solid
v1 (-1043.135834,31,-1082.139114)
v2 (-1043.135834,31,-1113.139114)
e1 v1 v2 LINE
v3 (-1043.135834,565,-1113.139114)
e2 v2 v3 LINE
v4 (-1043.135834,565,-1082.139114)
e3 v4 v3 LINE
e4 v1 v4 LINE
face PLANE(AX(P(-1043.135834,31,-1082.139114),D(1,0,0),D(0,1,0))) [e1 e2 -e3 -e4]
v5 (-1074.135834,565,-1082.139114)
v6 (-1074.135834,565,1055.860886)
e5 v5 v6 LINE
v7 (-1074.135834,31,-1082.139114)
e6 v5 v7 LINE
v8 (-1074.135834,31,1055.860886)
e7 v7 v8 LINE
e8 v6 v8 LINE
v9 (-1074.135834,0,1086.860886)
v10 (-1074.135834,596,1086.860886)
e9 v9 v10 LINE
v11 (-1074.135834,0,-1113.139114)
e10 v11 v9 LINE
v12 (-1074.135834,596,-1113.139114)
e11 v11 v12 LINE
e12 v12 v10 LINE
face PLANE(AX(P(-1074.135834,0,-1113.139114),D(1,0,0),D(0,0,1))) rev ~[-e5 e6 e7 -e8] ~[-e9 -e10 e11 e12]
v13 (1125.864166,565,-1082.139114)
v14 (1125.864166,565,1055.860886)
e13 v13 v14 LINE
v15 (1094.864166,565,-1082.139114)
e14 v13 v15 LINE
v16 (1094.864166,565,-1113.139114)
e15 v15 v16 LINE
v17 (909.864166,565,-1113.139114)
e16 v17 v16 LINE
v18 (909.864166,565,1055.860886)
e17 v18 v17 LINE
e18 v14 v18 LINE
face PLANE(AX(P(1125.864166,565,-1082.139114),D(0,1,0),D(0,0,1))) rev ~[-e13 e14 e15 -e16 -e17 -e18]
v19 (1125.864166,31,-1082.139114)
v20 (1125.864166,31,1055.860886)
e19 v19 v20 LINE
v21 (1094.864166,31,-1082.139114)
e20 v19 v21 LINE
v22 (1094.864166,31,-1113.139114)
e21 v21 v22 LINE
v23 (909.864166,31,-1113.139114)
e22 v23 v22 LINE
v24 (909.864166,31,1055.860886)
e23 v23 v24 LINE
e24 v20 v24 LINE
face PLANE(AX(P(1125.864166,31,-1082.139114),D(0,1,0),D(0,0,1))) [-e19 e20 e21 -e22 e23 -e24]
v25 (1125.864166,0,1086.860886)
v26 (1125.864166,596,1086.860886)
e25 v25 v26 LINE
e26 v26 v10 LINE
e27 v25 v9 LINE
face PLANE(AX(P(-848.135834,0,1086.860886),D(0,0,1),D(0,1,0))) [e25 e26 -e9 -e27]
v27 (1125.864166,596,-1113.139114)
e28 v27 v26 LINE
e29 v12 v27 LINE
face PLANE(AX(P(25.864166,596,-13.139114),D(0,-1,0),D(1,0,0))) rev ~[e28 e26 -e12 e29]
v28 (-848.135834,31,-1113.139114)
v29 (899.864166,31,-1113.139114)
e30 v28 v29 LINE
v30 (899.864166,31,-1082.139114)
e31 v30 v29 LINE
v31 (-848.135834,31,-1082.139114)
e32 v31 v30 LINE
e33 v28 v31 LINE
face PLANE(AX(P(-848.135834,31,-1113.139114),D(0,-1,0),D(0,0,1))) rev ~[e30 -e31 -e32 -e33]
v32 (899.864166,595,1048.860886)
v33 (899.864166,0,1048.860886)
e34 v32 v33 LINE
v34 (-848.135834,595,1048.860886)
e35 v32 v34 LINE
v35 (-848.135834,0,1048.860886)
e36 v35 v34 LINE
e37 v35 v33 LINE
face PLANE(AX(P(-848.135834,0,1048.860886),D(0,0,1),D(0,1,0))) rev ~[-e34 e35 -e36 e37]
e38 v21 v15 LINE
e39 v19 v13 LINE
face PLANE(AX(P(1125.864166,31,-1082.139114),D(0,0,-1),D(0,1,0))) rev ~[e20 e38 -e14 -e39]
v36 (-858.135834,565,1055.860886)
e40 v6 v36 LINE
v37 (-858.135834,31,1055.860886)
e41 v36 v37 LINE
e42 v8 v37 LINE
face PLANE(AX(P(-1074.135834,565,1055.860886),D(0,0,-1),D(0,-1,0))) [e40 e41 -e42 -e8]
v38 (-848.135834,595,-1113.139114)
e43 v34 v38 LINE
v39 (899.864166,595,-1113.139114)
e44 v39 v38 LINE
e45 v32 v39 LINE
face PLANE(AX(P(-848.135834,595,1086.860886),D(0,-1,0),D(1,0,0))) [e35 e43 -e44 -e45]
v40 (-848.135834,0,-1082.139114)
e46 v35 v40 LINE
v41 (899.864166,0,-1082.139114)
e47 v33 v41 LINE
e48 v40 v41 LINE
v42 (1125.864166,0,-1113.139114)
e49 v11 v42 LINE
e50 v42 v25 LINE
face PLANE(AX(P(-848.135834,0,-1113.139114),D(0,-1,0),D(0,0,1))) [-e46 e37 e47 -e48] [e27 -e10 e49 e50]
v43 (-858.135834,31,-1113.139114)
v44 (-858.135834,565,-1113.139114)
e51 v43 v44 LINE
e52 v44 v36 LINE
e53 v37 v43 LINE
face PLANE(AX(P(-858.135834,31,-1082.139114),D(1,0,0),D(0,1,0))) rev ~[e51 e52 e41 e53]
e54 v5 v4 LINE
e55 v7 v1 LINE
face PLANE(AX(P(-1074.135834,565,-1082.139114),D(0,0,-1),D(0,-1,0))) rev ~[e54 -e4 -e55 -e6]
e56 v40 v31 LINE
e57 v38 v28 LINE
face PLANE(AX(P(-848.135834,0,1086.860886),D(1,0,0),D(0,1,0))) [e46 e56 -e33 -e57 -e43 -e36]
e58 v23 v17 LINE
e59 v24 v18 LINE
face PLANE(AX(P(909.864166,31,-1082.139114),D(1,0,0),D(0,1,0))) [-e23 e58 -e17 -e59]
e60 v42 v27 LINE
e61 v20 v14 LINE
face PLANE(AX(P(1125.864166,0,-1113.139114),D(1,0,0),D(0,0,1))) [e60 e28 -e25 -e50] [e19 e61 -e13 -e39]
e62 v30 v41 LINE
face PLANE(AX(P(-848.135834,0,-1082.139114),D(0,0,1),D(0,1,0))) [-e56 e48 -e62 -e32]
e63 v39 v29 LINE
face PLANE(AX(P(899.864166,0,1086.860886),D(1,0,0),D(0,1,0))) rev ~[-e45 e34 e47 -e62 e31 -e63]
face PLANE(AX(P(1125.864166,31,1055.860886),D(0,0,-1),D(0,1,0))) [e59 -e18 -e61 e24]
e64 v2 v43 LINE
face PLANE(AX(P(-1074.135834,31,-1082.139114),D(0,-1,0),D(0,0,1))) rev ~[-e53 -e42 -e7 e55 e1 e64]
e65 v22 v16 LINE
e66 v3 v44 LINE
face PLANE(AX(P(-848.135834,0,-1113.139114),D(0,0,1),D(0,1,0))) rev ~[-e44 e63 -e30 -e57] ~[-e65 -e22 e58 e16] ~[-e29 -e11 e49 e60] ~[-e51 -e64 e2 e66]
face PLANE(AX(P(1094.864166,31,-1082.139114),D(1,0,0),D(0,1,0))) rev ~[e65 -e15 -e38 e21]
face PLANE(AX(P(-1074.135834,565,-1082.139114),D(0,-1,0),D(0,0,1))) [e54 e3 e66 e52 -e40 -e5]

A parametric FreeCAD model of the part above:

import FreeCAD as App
import Part
import Sketcher


def add_polygon(sketch, points):
    """Adds a closed chain of lines whose ends are joined by coincident constraints."""
    first, n = sketch.GeometryCount, len(points)
    for a, b in zip(points, points[1:] + points[:1]):
        sketch.addGeometry(Part.LineSegment(App.Vector(*a, 0), App.Vector(*b, 0)), False)
    for i in range(n):
        sketch.addConstraint(Sketcher.Constraint("Coincident", first + i, 2, first + (i + 1) % n, 1))

doc = App.newDocument("Part")
body = doc.addObject("PartDesign::Body", "Body")

# Sketch on XZ plane
sketch1 = doc.addObject("Sketcher::SketchObject", "Sketch")
body.addObject(sketch1)
sketch1.AttachmentSupport = (doc.XZ_Plane, [""])
sketch1.MapMode = "FlatFace"
add_polygon(sketch1, [(-1074, 1087), (-1074, -1113), (1126, -1113), (1126, 1087)])  # lines 0-3
sketch1.addConstraint([
    Sketcher.Constraint("Vertical", 0),
    Sketcher.Constraint("Horizontal", 1),
    Sketcher.Constraint("Vertical", 2),
    Sketcher.Constraint("Horizontal", 3),
    Sketcher.Constraint("Equal", 3, 0),
    Sketcher.Constraint("DistanceX", 1, 1, 1, 2, 2200.0),
    Sketcher.Constraint("DistanceX", 0, 2, -1, 1, 1074.135834),
    Sketcher.Constraint("DistanceY", 0, 2, -1, 1, 1113.139114),
])
pad1 = doc.addObject("PartDesign::Pad", "Pad")
body.addObject(pad1)
pad1.Profile = sketch1
pad1.Length = 596
pad1.Reversed = True

# Sketch on XY plane
sketch2 = doc.addObject("Sketcher::SketchObject", "Sketch001")
body.addObject(sketch2)
sketch2.AttachmentSupport = (doc.XY_Plane, [""])
sketch2.MapMode = "FlatFace"
sketch2.AttachmentOffset = App.Placement(App.Vector(0, 0, 1086.860886), App.Rotation())
add_polygon(sketch2, [(-848, 595), (-848, 0), (900, 0), (900, 595)])  # lines 0-3
sketch2.addConstraint([
    Sketcher.Constraint("Vertical", 0),
    Sketcher.Constraint("Horizontal", 1),
    Sketcher.Constraint("Vertical", 2),
    Sketcher.Constraint("Horizontal", 3),
    Sketcher.Constraint("PointOnObject", 0, 2, -1),
    Sketcher.Constraint("DistanceX", 1, 1, 1, 2, 1748.0),
    Sketcher.Constraint("DistanceY", 0, 2, 0, 1, 595.0),
    Sketcher.Constraint("DistanceX", 0, 2, -1, 1, 848.135834),
])
pocket1 = doc.addObject("PartDesign::Pocket", "Pocket")
body.addObject(pocket1)
pocket1.Profile = sketch2
pocket1.Length = 2415.503973

# Sketch on YZ plane
sketch3 = doc.addObject("Sketcher::SketchObject", "Sketch002")
body.addObject(sketch3)
sketch3.AttachmentSupport = (doc.YZ_Plane, [""])
sketch3.MapMode = "FlatFace"
sketch3.AttachmentOffset = App.Placement(App.Vector(0, 0, -848.135834), App.Rotation())
add_polygon(sketch3, [(0, 1087), (0, 1049), (596, 1049), (596, 1087)])  # lines 0-3
sketch3.addConstraint([
    Sketcher.Constraint("Vertical", 0),
    Sketcher.Constraint("Horizontal", 1),
    Sketcher.Constraint("Vertical", 2),
    Sketcher.Constraint("Horizontal", 3),
    Sketcher.Constraint("PointOnObject", 0, 2, -2),
    Sketcher.Constraint("DistanceX", 1, 1, 1, 2, 596.0),
    Sketcher.Constraint("DistanceY", 0, 2, 0, 1, 38.0),
    Sketcher.Constraint("DistanceY", -1, 1, 0, 2, 1048.860886),
])
pad2 = doc.addObject("PartDesign::Pad", "Pad001")
body.addObject(pad2)
pad2.Profile = sketch3
pad2.Length = 1753.233517

# Sketch on YZ plane
sketch4 = doc.addObject("Sketcher::SketchObject", "Sketch003")
body.addObject(sketch4)
sketch4.AttachmentSupport = (doc.YZ_Plane, [""])
sketch4.MapMode = "FlatFace"
sketch4.AttachmentOffset = App.Placement(App.Vector(0, 0, -848.135834), App.Rotation())
add_polygon(sketch4, [(0, -1082), (0, -1113), (31, -1113), (31, -1082)])  # lines 0-3
sketch4.addConstraint([
    Sketcher.Constraint("Vertical", 0),
    Sketcher.Constraint("Horizontal", 1),
    Sketcher.Constraint("Vertical", 2),
    Sketcher.Constraint("Horizontal", 3),
    Sketcher.Constraint("PointOnObject", 0, 2, -2),
    Sketcher.Constraint("Equal", 3, 0),
    Sketcher.Constraint("DistanceX", 1, 1, 1, 2, 31.0),
    Sketcher.Constraint("DistanceY", 0, 2, -1, 1, 1113.139114),
])
pad3 = doc.addObject("PartDesign::Pad", "Pad002")
body.addObject(pad3)
pad3.Profile = sketch4
pad3.Length = 1759.984374

# Sketch on YZ plane
sketch5 = doc.addObject("Sketcher::SketchObject", "Sketch004")
body.addObject(sketch5)
sketch5.AttachmentSupport = (doc.YZ_Plane, [""])
sketch5.MapMode = "FlatFace"
sketch5.AttachmentOffset = App.Placement(App.Vector(0, 0, 1125.864166), App.Rotation())
add_polygon(sketch5, [(31, 1056), (31, -1082), (565, -1082), (565, 1056)])  # lines 0-3
sketch5.addConstraint([
    Sketcher.Constraint("Vertical", 0),
    Sketcher.Constraint("Horizontal", 1),
    Sketcher.Constraint("Vertical", 2),
    Sketcher.Constraint("Horizontal", 3),
    Sketcher.Constraint("DistanceX", 1, 1, 1, 2, 534.0),
    Sketcher.Constraint("DistanceY", 0, 2, 0, 1, 2138.0),
    Sketcher.Constraint("DistanceX", -1, 1, 0, 2, 31.0),
    Sketcher.Constraint("DistanceY", 0, 2, -1, 1, 1082.139114),
])
pocket2 = doc.addObject("PartDesign::Pocket", "Pocket001")
body.addObject(pocket2)
pocket2.Profile = sketch5
pocket2.Length = 216

# Sketch on XY plane
sketch6 = doc.addObject("Sketcher::SketchObject", "Sketch005")
body.addObject(sketch6)
sketch6.AttachmentSupport = (doc.XY_Plane, [""])
sketch6.MapMode = "FlatFace"
sketch6.AttachmentOffset = App.Placement(App.Vector(0, 0, -1082.139114), App.Rotation())
add_polygon(sketch6, [(910, 565), (910, 31), (1095, 31), (1095, 565)])  # lines 0-3
sketch6.addConstraint([
    Sketcher.Constraint("Vertical", 0),
    Sketcher.Constraint("Horizontal", 1),
    Sketcher.Constraint("Vertical", 2),
    Sketcher.Constraint("Horizontal", 3),
    Sketcher.Constraint("DistanceX", 1, 1, 1, 2, 185.0),
    Sketcher.Constraint("DistanceY", 0, 2, 0, 1, 534.0),
    Sketcher.Constraint("DistanceY", -1, 1, 0, 2, 31.0),
    Sketcher.Constraint("DistanceX", -1, 1, 0, 2, 909.864166),
])
pocket3 = doc.addObject("PartDesign::Pocket", "Pocket002")
body.addObject(pocket3)
pocket3.Profile = sketch6
pocket3.Length = 295.372376

# Sketch on YZ plane
sketch7 = doc.addObject("Sketcher::SketchObject", "Sketch006")
body.addObject(sketch7)
sketch7.AttachmentSupport = (doc.YZ_Plane, [""])
sketch7.MapMode = "FlatFace"
sketch7.AttachmentOffset = App.Placement(App.Vector(0, 0, -1074.135834), App.Rotation())
add_polygon(sketch7, [(565, 1056), (565, -1082), (31, -1082), (31, 1056)])  # lines 0-3
sketch7.addConstraint([
    Sketcher.Constraint("Vertical", 0),
    Sketcher.Constraint("Horizontal", 1),
    Sketcher.Constraint("Vertical", 2),
    Sketcher.Constraint("Horizontal", 3),
    Sketcher.Constraint("DistanceX", 1, 2, 1, 1, 534.0),
    Sketcher.Constraint("DistanceY", 0, 2, 0, 1, 2138.0),
    Sketcher.Constraint("DistanceX", -1, 1, 0, 2, 565.0),
    Sketcher.Constraint("DistanceY", 0, 2, -1, 1, 1082.139114),
])
pocket4 = doc.addObject("PartDesign::Pocket", "Pocket003")
body.addObject(pocket4)
pocket4.Profile = sketch7
pocket4.Length = 216
pocket4.Reversed = True

# Sketch on XY plane
sketch8 = doc.addObject("Sketcher::SketchObject", "Sketch007")
body.addObject(sketch8)
sketch8.AttachmentSupport = (doc.XY_Plane, [""])
sketch8.MapMode = "FlatFace"
sketch8.AttachmentOffset = App.Placement(App.Vector(0, 0, -1082.139114), App.Rotation())
add_polygon(sketch8, [(-1043, 565), (-1043, 31), (-858, 31), (-858, 565)])  # lines 0-3
sketch8.addConstraint([
    Sketcher.Constraint("Vertical", 0),
    Sketcher.Constraint("Horizontal", 1),
    Sketcher.Constraint("Vertical", 2),
    Sketcher.Constraint("Horizontal", 3),
    Sketcher.Constraint("DistanceX", 1, 1, 1, 2, 185.0),
    Sketcher.Constraint("DistanceY", 0, 2, 0, 1, 534.0),
    Sketcher.Constraint("DistanceY", -1, 1, 0, 2, 31.0),
    Sketcher.Constraint("DistanceX", 0, 2, -1, 1, 1043.135834),
])
pocket5 = doc.addObject("PartDesign::Pocket", "Pocket004")
body.addObject(pocket5)
pocket5.Profile = sketch8
pocket5.Length = 871.478731

doc.recompute()
